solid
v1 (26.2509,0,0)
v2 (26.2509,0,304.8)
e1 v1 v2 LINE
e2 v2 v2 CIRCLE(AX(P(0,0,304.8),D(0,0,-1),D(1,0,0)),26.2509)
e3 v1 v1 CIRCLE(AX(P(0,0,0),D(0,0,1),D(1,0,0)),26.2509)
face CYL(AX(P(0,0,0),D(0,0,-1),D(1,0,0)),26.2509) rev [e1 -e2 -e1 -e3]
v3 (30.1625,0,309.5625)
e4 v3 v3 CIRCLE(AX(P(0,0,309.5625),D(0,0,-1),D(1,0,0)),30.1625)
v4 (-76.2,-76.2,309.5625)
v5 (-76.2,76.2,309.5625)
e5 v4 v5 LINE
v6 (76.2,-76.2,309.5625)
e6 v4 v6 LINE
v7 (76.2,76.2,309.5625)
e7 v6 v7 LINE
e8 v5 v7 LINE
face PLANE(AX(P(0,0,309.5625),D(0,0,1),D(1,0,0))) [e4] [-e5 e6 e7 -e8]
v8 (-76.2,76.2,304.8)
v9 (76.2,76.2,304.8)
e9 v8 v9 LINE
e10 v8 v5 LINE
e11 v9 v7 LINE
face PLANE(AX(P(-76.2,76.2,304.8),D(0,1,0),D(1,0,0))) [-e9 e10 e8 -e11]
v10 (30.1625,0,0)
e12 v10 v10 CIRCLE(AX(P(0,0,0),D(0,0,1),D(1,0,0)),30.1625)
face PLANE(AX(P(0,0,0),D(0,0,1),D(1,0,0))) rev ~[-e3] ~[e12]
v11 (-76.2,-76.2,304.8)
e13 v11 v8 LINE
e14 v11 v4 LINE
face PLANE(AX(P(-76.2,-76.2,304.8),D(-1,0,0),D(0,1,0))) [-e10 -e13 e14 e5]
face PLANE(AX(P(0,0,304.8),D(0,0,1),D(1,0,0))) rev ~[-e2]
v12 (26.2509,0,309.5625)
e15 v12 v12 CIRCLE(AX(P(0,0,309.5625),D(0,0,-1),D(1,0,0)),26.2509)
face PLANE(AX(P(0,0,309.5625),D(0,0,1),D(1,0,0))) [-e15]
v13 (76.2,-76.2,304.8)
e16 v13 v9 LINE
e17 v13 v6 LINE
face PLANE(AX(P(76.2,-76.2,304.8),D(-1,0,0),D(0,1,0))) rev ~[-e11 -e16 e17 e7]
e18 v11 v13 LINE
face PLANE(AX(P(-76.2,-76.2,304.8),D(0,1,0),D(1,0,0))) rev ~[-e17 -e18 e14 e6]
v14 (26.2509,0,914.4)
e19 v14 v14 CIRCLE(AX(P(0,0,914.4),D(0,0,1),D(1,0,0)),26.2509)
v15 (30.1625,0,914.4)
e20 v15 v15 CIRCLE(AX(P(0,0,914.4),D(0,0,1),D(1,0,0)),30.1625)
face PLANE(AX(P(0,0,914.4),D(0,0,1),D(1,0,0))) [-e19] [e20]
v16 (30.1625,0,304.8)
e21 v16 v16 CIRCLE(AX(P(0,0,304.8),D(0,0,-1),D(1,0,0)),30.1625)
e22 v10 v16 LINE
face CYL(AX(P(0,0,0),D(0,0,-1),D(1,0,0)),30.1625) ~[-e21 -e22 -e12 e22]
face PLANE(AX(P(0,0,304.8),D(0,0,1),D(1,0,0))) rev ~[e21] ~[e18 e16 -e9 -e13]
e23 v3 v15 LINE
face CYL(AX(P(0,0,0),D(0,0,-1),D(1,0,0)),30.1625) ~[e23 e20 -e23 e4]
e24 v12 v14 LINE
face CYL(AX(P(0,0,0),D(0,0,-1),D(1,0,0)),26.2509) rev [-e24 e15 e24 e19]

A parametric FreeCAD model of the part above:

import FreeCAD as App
import Part
import Sketcher

V = App.Vector
Q = App.Units.Quantity


def add_polygon(sketch, points):
    """Adds a closed chain of lines whose ends are joined by coincident constraints."""
    first, n = sketch.GeometryCount, len(points)
    for a, b in zip(points, points[1:] + points[:1]):
        sketch.addGeometry(Part.LineSegment(App.Vector(*a, 0), App.Vector(*b, 0)), False)
    for i in range(n):
        sketch.addConstraint(Sketcher.Constraint("Coincident", first + i, 2, first + (i + 1) % n, 1))

doc = App.newDocument("Part")
body = doc.addObject("PartDesign::Body", "Body")

sketch1 = doc.addObject("Sketcher::SketchObject", "Sketch")
body.addObject(sketch1)
sketch1.AttachmentSupport = (doc.XY_Plane, [""])
sketch1.MapMode = "FlatFace"
sketch1.addGeometry(Part.Circle(V(0, 0, 0), V(0, 0, 1), 30), False)
sketch1.addGeometry(Part.Circle(V(0, 0, 0), V(0, 0, 1), 26), False)
sketch1.addConstraint(Sketcher.Constraint("Coincident", 0, 3, -1, 1))
sketch1.addConstraint(Sketcher.Constraint("Coincident", 1, 3, -1, 1))
sketch1.addConstraint(Sketcher.Constraint("Diameter", 0, Q("2.375 in")))
sketch1.addConstraint(Sketcher.Constraint("Diameter", 1, Q("2.067 in")))
pad1 = doc.addObject("PartDesign::Pad", "Pad")
body.addObject(pad1)
pad1.Profile = sketch1
pad1.Length = Q("36 in")

sketch2 = doc.addObject("Sketcher::SketchObject", "Sketch001")
body.addObject(sketch2)
sketch2.AttachmentSupport = (doc.XY_Plane, [""])
sketch2.MapMode = "FlatFace"
sketch2.AttachmentOffset = App.Placement(V(0, 0, 12 * 25.4), App.Rotation())
add_polygon(sketch2, [(-76, 76), (-76, -76), (76, -76), (76, 76)])
sketch2.addConstraint(Sketcher.Constraint("Vertical", 0))
sketch2.addConstraint(Sketcher.Constraint("Horizontal", 1))
sketch2.addConstraint(Sketcher.Constraint("Vertical", 2))
sketch2.addConstraint(Sketcher.Constraint("Horizontal", 3))
sketch2.addConstraint(Sketcher.Constraint("Symmetric", 0, 2, 2, 2, -1, 1))
sketch2.addConstraint(Sketcher.Constraint("Equal", 3, 0))
sketch2.addConstraint(Sketcher.Constraint("DistanceX", 1, 1, 1, 2, Q("6 in")))
pad2 = doc.addObject("PartDesign::Pad", "Pad001")
body.addObject(pad2)
pad2.Profile = sketch2
pad2.Length = Q("0.1875 in")

doc.recompute()
